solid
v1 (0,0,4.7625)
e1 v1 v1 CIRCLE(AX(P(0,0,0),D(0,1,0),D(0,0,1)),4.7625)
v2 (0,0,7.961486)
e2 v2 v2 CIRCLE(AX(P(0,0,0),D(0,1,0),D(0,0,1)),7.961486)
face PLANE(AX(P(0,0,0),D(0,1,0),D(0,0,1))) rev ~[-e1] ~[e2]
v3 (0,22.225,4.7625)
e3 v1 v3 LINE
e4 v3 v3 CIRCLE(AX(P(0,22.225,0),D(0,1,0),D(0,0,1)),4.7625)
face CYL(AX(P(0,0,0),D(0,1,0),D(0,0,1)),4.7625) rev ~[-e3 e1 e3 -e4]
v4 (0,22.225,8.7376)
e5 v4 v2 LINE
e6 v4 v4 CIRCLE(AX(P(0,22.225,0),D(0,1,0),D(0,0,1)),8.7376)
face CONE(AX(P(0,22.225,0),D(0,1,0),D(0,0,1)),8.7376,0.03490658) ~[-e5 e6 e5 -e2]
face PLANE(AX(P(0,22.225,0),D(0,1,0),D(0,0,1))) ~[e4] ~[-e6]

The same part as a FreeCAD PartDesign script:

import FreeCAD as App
import Part
import Sketcher

V = App.Vector
Q = App.Units.Quantity


def add_polygon(sketch, points):
    """Adds a closed chain of lines whose ends are joined by coincident constraints."""
    first, n = sketch.GeometryCount, len(points)
    for a, b in zip(points, points[1:] + points[:1]):
        sketch.addGeometry(Part.LineSegment(App.Vector(*a, 0), App.Vector(*b, 0)), False)
    for i in range(n):
        sketch.addConstraint(Sketcher.Constraint("Coincident", first + i, 2, first + (i + 1) % n, 1))

doc = App.newDocument("Part")
body = doc.addObject("PartDesign::Body", "Body")

# Sketch on YZ plane
sketch1 = body.newObject("Sketcher::SketchObject", "Sketch")
sketch1.AttachmentSupport = (doc.getObject("YZ_Plane"), [""])
sketch1.MapMode = "FlatFace"
add_polygon(sketch1, [(0, 8), (0, 4.8), (22.2, 4.8), (22.2, 8.7)])  # lines 0-3
sketch1.addConstraint([
    Sketcher.Constraint("Vertical", 0),
    Sketcher.Constraint("Horizontal", 1),
    Sketcher.Constraint("Vertical", 2),
    Sketcher.Constraint("PointOnObject", 0, 2, -2),
    Sketcher.Constraint("Angle", 3, Q("-178 deg")),
    Sketcher.Constraint("DistanceX", 1, 1, 1, 2, Q("0.875 in")),
    Sketcher.Constraint("DistanceY", 2, 1, 2, 2, Q("0.1565 in")),
    Sketcher.Constraint("DistanceY", -1, 1, 0, 2, Q("0.1875 in")),
])
revolution = body.newObject("PartDesign::Revolution", "Revolution")
revolution.Profile = sketch1
revolution.ReferenceAxis = (sketch1, ["H_Axis"])
revolution.Angle = 360

doc.recompute()
